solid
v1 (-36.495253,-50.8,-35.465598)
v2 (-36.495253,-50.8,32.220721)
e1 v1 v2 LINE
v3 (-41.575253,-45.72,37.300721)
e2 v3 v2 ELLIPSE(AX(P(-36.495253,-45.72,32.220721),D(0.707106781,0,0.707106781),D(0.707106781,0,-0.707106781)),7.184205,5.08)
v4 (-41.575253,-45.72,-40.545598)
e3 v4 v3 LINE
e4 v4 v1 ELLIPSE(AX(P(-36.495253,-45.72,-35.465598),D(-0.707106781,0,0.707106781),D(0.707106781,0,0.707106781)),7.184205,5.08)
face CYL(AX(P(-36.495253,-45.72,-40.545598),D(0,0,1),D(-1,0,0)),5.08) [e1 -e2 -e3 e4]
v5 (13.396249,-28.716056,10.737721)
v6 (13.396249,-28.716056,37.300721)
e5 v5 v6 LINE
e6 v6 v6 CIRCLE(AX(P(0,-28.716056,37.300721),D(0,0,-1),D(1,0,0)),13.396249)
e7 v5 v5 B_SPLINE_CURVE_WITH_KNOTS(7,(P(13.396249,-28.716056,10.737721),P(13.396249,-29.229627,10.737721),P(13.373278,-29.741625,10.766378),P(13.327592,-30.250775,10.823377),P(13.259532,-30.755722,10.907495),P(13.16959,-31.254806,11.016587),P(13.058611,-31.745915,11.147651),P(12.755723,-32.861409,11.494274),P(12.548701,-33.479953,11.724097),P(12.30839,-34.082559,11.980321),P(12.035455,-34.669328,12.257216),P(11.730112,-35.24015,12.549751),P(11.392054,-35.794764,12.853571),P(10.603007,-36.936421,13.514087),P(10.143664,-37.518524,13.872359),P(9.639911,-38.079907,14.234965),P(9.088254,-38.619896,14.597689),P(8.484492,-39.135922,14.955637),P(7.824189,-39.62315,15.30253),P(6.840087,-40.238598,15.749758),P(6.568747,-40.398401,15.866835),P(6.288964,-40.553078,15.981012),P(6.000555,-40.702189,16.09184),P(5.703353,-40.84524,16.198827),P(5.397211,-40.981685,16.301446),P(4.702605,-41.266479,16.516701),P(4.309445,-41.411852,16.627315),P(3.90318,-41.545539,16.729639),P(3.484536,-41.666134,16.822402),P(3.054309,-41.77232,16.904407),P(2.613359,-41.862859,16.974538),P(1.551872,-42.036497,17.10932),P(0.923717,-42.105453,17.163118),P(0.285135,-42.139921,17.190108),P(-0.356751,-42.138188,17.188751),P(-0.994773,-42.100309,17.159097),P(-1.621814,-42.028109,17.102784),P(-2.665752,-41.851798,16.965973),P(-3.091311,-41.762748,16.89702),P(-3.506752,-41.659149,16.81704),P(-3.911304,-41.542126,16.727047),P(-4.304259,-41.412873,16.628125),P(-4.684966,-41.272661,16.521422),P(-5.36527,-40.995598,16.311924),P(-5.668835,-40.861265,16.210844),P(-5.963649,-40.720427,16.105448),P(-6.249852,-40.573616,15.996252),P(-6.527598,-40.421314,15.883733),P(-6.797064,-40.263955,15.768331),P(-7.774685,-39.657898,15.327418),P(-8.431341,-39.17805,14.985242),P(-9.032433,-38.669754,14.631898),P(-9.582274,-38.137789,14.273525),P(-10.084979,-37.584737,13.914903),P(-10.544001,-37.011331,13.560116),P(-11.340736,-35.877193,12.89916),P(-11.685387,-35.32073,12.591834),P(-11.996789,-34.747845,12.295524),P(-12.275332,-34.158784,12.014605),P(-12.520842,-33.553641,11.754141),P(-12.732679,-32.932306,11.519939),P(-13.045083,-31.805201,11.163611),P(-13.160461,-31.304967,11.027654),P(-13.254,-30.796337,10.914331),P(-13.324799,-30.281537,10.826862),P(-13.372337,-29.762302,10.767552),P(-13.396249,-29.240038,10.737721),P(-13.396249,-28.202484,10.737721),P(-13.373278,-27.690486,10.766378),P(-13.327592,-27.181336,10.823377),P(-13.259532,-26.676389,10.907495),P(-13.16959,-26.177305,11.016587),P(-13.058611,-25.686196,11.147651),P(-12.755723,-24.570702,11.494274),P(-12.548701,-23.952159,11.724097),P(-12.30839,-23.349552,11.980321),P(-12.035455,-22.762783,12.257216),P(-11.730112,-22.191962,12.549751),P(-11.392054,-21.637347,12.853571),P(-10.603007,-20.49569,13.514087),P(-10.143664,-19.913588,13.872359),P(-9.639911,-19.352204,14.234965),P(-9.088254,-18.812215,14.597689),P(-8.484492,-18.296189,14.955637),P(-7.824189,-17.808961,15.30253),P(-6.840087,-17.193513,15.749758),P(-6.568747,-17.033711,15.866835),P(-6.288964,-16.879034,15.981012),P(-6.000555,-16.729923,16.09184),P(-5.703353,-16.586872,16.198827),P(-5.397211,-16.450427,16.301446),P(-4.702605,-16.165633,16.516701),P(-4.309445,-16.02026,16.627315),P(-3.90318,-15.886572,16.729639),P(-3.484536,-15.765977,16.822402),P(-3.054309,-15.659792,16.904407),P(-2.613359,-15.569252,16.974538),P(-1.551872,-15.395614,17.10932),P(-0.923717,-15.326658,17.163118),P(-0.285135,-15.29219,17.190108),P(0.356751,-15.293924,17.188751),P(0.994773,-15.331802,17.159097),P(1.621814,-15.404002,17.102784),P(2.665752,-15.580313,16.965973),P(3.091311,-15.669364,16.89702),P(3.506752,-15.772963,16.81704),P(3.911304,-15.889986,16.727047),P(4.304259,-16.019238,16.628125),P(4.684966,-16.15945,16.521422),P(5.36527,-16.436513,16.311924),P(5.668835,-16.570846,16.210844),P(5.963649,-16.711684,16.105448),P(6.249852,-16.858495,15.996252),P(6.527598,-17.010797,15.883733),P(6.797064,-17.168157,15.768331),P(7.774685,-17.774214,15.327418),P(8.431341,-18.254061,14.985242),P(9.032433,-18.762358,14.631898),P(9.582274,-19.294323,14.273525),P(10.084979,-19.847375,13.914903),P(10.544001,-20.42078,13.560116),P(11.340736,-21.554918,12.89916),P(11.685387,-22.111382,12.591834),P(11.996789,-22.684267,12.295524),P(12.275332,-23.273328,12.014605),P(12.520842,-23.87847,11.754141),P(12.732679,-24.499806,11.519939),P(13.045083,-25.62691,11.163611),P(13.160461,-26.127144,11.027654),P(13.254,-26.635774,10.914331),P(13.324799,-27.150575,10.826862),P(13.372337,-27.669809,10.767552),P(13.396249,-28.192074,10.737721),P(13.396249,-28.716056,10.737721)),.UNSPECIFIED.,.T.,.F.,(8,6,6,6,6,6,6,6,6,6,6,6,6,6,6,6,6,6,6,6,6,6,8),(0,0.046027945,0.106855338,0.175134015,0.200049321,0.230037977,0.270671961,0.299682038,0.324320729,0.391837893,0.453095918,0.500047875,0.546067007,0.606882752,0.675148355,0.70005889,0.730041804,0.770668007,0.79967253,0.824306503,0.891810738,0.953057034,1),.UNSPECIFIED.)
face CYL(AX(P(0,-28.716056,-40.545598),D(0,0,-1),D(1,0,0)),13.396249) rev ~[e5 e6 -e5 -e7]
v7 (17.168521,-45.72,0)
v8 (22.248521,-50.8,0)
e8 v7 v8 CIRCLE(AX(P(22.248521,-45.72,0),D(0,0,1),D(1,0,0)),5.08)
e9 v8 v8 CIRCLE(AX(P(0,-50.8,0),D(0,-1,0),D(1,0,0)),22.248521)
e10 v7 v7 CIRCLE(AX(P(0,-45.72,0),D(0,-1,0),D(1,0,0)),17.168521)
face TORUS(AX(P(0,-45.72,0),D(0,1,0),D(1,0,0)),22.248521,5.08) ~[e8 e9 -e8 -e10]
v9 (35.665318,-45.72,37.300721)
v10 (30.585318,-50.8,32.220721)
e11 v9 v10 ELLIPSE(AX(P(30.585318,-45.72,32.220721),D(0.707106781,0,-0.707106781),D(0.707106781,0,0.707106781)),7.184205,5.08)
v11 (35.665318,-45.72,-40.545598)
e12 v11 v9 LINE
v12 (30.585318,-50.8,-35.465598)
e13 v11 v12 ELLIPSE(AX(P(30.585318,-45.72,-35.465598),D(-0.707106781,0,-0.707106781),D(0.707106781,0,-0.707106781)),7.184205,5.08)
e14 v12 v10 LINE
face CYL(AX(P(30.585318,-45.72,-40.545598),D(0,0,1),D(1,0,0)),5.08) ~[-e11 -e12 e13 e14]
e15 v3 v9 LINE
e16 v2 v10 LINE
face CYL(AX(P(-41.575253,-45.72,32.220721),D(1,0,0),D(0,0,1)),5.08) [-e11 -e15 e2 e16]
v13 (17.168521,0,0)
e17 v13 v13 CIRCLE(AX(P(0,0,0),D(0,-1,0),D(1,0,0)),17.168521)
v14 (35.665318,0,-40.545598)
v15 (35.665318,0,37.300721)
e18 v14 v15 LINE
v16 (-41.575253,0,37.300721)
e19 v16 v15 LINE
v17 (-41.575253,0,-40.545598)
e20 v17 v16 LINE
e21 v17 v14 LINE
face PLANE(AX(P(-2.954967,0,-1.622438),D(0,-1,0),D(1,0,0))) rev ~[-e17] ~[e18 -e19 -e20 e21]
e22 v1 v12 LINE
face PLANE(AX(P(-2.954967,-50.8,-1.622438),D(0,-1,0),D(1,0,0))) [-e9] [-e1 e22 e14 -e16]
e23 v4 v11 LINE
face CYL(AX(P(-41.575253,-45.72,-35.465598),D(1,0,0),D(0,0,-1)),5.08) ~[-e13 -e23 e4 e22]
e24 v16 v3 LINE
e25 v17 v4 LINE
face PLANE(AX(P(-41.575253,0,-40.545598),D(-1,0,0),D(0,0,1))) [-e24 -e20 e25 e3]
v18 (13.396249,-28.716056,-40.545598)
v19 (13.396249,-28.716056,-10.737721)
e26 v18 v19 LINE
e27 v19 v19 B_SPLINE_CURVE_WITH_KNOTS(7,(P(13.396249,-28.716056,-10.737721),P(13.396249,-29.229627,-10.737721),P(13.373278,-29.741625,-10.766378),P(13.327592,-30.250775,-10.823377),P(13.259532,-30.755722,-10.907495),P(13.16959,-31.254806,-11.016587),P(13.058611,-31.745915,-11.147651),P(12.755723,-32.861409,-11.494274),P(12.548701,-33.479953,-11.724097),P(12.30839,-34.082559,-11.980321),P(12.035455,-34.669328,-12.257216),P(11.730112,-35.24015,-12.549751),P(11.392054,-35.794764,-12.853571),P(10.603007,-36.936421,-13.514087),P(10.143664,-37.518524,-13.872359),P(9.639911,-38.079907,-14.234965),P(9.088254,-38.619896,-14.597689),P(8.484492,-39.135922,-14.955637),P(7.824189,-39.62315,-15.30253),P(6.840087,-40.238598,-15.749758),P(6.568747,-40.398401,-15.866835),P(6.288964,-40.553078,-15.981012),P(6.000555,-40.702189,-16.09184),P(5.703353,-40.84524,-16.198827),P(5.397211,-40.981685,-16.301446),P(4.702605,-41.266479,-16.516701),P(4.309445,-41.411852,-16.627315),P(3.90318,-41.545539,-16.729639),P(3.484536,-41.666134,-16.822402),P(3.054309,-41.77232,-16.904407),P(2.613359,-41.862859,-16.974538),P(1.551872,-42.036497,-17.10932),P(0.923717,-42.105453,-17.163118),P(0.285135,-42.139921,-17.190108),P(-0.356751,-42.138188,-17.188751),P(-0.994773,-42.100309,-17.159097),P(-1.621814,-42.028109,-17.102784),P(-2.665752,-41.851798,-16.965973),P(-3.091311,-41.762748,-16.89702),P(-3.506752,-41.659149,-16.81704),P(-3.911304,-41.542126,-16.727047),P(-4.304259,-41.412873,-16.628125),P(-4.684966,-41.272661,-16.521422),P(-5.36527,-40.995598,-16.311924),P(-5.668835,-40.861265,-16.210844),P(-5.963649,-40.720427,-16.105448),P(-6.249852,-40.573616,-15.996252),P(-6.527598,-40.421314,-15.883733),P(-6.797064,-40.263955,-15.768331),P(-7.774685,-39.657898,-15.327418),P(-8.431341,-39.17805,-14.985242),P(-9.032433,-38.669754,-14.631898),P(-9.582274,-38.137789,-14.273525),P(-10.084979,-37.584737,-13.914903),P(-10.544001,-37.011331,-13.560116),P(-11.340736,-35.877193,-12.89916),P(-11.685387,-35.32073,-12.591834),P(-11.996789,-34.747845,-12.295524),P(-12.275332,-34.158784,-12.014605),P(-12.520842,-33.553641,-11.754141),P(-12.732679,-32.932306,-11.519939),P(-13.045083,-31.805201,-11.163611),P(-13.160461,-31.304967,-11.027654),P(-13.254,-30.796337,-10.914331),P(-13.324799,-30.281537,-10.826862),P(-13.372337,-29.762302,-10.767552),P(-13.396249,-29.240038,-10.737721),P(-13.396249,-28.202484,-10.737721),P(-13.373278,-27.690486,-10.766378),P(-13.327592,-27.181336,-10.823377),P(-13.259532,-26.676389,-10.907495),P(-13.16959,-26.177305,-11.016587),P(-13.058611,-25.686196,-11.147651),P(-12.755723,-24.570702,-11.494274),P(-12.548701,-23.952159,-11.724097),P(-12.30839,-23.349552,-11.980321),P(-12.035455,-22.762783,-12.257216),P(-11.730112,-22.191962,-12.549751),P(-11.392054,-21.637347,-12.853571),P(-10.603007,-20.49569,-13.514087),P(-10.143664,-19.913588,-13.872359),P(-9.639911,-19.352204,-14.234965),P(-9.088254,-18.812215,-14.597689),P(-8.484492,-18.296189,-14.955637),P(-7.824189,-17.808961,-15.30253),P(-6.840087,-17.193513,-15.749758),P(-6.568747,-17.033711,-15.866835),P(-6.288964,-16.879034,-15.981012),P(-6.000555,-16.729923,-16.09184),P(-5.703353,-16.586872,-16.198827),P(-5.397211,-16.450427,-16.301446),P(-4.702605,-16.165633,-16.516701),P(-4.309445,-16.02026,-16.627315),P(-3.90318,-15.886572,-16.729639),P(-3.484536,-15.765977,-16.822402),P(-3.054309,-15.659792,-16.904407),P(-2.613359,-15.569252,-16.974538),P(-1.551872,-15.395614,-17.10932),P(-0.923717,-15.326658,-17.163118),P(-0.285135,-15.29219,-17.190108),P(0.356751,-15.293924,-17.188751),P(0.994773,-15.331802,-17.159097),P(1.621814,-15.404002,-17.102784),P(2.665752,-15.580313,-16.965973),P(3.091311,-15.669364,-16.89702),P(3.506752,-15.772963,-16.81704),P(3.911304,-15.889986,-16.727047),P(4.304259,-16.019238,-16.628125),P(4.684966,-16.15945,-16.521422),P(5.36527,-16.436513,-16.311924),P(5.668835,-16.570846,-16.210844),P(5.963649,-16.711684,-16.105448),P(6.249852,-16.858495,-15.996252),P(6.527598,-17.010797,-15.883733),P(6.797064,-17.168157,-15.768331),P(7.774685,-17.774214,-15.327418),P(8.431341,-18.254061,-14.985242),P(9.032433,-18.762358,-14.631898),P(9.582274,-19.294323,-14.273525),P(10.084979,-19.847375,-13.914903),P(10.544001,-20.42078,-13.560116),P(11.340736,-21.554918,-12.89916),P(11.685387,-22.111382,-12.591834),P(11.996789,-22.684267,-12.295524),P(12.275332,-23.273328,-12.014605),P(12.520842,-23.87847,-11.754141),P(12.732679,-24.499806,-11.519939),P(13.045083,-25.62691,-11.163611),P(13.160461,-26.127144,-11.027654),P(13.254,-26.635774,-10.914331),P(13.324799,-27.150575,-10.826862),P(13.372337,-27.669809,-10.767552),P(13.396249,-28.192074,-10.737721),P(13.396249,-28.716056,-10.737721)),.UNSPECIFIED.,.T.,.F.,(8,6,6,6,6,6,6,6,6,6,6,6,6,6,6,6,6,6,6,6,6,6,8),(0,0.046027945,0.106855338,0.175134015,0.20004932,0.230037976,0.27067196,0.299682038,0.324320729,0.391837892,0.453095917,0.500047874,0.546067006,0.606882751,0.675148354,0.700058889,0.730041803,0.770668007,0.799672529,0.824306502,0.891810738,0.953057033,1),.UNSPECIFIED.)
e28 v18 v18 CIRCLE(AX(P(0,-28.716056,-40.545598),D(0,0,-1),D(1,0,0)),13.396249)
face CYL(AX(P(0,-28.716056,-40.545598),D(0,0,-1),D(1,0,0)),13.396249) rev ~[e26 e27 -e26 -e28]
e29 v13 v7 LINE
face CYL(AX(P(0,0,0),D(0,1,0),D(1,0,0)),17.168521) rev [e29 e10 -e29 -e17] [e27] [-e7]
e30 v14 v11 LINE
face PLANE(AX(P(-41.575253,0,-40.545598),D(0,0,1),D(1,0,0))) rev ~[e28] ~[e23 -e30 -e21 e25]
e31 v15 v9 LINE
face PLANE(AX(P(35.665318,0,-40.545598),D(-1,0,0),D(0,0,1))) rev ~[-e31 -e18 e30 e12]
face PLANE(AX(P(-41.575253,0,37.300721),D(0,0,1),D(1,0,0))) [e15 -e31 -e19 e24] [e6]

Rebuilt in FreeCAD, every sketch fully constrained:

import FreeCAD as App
import Part
import Sketcher

V = App.Vector
Q = App.Units.Quantity


def edges_at(feature, points):
    """Names of the edges that pass closest to the given points."""
    edges = feature.Shape.Edges
    near = lambda p: min(range(len(edges)), key=lambda i: edges[i].distToShape(Part.Vertex(*p))[0])
    return sorted({f"Edge{near(p) + 1}" for p in points})

doc = App.newDocument("Part")
body = doc.addObject("PartDesign::Body", "Body")

# Sketch on XZ plane
sketch1 = body.newObject("Sketcher::SketchObject", "Sketch")
sketch1.AttachmentSupport = (doc.getObject("XZ_Plane"), [""])
sketch1.MapMode = "FlatFace"
sketch1.addGeometry([
    Part.LineSegment(V(-41.575253, 37.300721, 0), V(-41.575253, -40.545598, 0)),  # 0
    Part.LineSegment(V(-41.575253, -40.545598, 0), V(35.665318, -40.545598, 0)),  # 1
    Part.LineSegment(V(35.665318, -40.545598, 0), V(35.665318, 37.300721, 0)),  # 2
    Part.LineSegment(V(35.665318, 37.300721, 0), V(-41.575253, 37.300721, 0)),  # 3
    Part.Circle(V(0, 0, 0), V(0, 0, 1), 17.168521),  # 4
], False)
sketch1.addConstraint([
    Sketcher.Constraint("Coincident", 0, 2, 1, 1),
    Sketcher.Constraint("Coincident", 1, 2, 2, 1),
    Sketcher.Constraint("Coincident", 2, 2, 3, 1),
    Sketcher.Constraint("Coincident", 3, 2, 0, 1),
    Sketcher.Constraint("Vertical", 0),
    Sketcher.Constraint("Horizontal", 1),
    Sketcher.Constraint("Vertical", 2),
    Sketcher.Constraint("Horizontal", 3),
    Sketcher.Constraint("Coincident", 4, 3, -1, 1),
    Sketcher.Constraint("Diameter", 4, Q("34.337043 mm")),
    Sketcher.Constraint("DistanceX", 1, 1, 1, 2, Q("77.240571 mm")),
    Sketcher.Constraint("DistanceY", 0, 2, 0, 1, Q("77.846318 mm")),
    Sketcher.Constraint("DistanceX", -1, 1, 1, 2, Q("35.665318 mm")),
    Sketcher.Constraint("DistanceY", -1, 1, 2, 2, Q("37.300721 mm")),
])
pad1 = body.newObject("PartDesign::Pad", "Pad")
pad1.Profile = sketch1
pad1.Length = Q("2 in")
doc.recompute()

fillet = body.newObject("PartDesign::Fillet", "Fillet")
fillet.Base = (pad1, edges_at(pad1, [
    (-2.955, -50.8, -40.546),
    (35.665, -50.8, -1.622),
    (-2.955, -50.8, 37.301),
    (-41.575, -50.8, -1.622),
    (-17.169, -50.8, 0),
]))
fillet.Radius = Q("0.2 in")

# Sketch on XY plane
sketch2 = body.newObject("Sketcher::SketchObject", "Sketch001")
sketch2.AttachmentSupport = (doc.getObject("XY_Plane"), [""])
sketch2.MapMode = "FlatFace"
sketch2.AttachmentOffset = App.Placement(V(0, 0, -40.545598), App.Rotation())
sketch2.addGeometry(Part.Circle(V(0, -28.716056, 0), V(0, 0, 1), 13.396249), False)
sketch2.addConstraint([
    Sketcher.Constraint("PointOnObject", 0, 3, -2),
    Sketcher.Constraint("Diameter", 0, Q("26.792497 mm")),
    Sketcher.Constraint("DistanceY", 0, 3, -1, 1, Q("28.716056 mm")),
])
pocket1 = body.newObject("PartDesign::Pocket", "Pocket")
pocket1.Profile = sketch2
pocket1.Length = Q("9 in")
pocket1.Reversed = True

doc.recompute()
